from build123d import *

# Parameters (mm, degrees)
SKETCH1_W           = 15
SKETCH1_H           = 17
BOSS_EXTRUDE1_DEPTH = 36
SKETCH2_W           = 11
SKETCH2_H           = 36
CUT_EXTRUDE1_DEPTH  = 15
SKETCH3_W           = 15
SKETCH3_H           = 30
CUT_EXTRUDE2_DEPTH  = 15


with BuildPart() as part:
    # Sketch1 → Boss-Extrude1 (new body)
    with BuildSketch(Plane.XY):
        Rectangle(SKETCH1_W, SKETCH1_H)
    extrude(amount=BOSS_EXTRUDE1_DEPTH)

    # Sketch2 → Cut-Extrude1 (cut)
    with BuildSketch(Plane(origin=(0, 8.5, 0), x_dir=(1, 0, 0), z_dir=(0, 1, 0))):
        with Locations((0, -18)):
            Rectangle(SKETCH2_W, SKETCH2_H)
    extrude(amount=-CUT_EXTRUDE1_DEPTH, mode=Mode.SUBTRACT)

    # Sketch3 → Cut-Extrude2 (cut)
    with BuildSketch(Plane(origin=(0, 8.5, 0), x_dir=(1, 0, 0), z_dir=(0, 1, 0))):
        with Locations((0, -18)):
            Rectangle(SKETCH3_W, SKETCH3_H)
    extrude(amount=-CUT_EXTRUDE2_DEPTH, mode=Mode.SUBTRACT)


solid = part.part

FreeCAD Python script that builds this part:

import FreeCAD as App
import Part
import Sketcher

V = App.Vector
Q = App.Units.Quantity


def add_polygon(sketch, points):
    """Adds a closed chain of lines whose ends are joined by coincident constraints."""
    first, n = sketch.GeometryCount, len(points)
    for a, b in zip(points, points[1:] + points[:1]):
        sketch.addGeometry(Part.LineSegment(App.Vector(*a, 0), App.Vector(*b, 0)), False)
    for i in range(n):
        sketch.addConstraint(Sketcher.Constraint("Coincident", first + i, 2, first + (i + 1) % n, 1))

doc = App.newDocument("Part")
body = doc.addObject("PartDesign::Body", "Body")

sketch1 = body.newObject("Sketcher::SketchObject", "Sketch")
sketch1.AttachmentSupport = (doc.getObject("XY_Plane"), [""])
sketch1.MapMode = "FlatFace"
add_polygon(sketch1, [(-8, 8), (-8, -8), (8, -8), (8, 8)])
sketch1.addConstraint([
    Sketcher.Constraint("Vertical", 0),
    Sketcher.Constraint("Horizontal", 1),
    Sketcher.Constraint("Vertical", 2),
    Sketcher.Constraint("Horizontal", 3),
    Sketcher.Constraint("Symmetric", 0, 2, 2, 2, -1, 1),
    Sketcher.Constraint("DistanceX", 1, 1, 1, 2, Q("15 mm")),
    Sketcher.Constraint("DistanceY", 0, 2, 0, 1, Q("17 mm")),
])
pad1 = body.newObject("PartDesign::Pad", "Pad")
pad1.Profile = sketch1
pad1.Length = 36

sketch2 = body.newObject("Sketcher::SketchObject", "Sketch001")
sketch2.AttachmentSupport = (doc.getObject("XZ_Plane"), [""])
sketch2.MapMode = "FlatFace"
sketch2.AttachmentOffset = App.Placement(V(0, 0, -8.5), App.Rotation())
add_polygon(sketch2, [(-6, 0), (-6, 36), (6, 36), (6, 0)])
sketch2.addConstraint([
    Sketcher.Constraint("Vertical", 0),
    Sketcher.Constraint("Horizontal", 1),
    Sketcher.Constraint("Vertical", 2),
    Sketcher.Constraint("Horizontal", 3),
    Sketcher.Constraint("Symmetric", 2, 2, 3, 2, -1, 1),
    Sketcher.Constraint("DistanceX", 1, 1, 1, 2, Q("11 mm")),
    Sketcher.Constraint("DistanceY", 0, 1, 0, 2, Q("36 mm")),
])
pocket1 = body.newObject("PartDesign::Pocket", "Pocket")
pocket1.Profile = sketch2
pocket1.Length = 15
pocket1.Reversed = True

sketch3 = body.newObject("Sketcher::SketchObject", "Sketch002")
sketch3.AttachmentSupport = (doc.getObject("XZ_Plane"), [""])
sketch3.MapMode = "FlatFace"
sketch3.AttachmentOffset = App.Placement(V(0, 0, -8.5), App.Rotation())
add_polygon(sketch3, [(-8, 3), (-8, 33), (8, 33), (8, 3)])
sketch3.addConstraint([
    Sketcher.Constraint("Vertical", 0),
    Sketcher.Constraint("Horizontal", 1),
    Sketcher.Constraint("Vertical", 2),
    Sketcher.Constraint("Horizontal", 3),
    Sketcher.Constraint("DistanceX", 1, 1, 1, 2, Q("15 mm")),
    Sketcher.Constraint("DistanceY", 0, 1, 0, 2, Q("30 mm")),
    Sketcher.Constraint("DistanceY", -1, 1, 0, 2, Q("33 mm")),
    Sketcher.Constraint("DistanceX", 0, 2, -1, 1, Q("7.5 mm")),
])
pocket2 = body.newObject("PartDesign::Pocket", "Pocket001")
pocket2.Profile = sketch3
pocket2.Length = 15
pocket2.Reversed = True

doc.recompute()
